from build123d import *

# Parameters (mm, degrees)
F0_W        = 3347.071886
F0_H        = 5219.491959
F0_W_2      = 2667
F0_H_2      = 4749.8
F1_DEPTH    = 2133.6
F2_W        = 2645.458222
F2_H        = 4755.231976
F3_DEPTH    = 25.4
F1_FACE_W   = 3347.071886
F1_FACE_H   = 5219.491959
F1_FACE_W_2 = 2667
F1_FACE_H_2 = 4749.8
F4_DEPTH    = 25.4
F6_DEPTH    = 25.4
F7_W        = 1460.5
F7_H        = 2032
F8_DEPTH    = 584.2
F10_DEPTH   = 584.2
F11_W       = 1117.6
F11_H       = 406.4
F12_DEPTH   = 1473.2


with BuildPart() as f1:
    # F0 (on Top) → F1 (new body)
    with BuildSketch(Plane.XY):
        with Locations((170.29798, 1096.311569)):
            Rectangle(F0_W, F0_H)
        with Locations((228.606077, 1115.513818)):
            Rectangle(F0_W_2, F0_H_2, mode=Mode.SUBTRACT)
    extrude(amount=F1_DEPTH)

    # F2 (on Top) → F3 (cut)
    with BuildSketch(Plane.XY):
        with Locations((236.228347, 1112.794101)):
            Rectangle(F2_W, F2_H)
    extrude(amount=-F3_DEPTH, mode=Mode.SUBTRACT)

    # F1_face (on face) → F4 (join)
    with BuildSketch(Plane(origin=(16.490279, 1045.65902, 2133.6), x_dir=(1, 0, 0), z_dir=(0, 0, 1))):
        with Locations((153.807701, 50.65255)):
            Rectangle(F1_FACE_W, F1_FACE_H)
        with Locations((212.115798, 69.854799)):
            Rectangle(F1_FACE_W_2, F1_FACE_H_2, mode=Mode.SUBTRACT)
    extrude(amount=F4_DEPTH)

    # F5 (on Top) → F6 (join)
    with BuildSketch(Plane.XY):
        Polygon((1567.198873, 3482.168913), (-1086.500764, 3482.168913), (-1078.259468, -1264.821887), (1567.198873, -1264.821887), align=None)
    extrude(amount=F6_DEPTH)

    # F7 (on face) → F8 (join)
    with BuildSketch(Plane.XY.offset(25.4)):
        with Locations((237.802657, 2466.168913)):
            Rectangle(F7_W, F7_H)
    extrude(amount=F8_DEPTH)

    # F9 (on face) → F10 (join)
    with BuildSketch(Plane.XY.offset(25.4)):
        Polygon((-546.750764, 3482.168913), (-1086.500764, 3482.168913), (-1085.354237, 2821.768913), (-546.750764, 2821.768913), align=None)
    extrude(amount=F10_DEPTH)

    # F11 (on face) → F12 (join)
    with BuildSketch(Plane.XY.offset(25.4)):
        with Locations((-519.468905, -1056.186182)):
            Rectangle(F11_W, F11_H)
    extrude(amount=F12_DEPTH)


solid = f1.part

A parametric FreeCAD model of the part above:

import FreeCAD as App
import Part
import Sketcher

V = App.Vector
Q = App.Units.Quantity

doc = App.newDocument("Part")
body = doc.addObject("PartDesign::Body", "Body")

# Sketch on XY plane
sketch1 = doc.addObject("Sketcher::SketchObject", "Sketch")
body.addObject(sketch1)
sketch1.AttachmentSupport = (doc.XY_Plane, [""])
sketch1.MapMode = "FlatFace"
sketch1.addGeometry(Part.LineSegment(V(-1503, 3706, 0), V(-1503, -1513, 0)), False)
sketch1.addGeometry(Part.LineSegment(V(-1503, -1513, 0), V(1844, -1513, 0)), False)
sketch1.addGeometry(Part.LineSegment(V(1844, -1513, 0), V(1844, 3706, 0)), False)
sketch1.addGeometry(Part.LineSegment(V(1844, 3706, 0), V(-1503, 3706, 0)), False)
sketch1.addGeometry(Part.LineSegment(V(1562, -1259, 0), V(-1105, -1259, 0)), False)
sketch1.addGeometry(Part.LineSegment(V(-1105, -1259, 0), V(-1105, 3490, 0)), False)
sketch1.addGeometry(Part.LineSegment(V(-1105, 3490, 0), V(1562, 3490, 0)), False)
sketch1.addGeometry(Part.LineSegment(V(1562, 3490, 0), V(1562, -1259, 0)), False)
sketch1.addConstraint(Sketcher.Constraint("Coincident", 0, 2, 1, 1))
sketch1.addConstraint(Sketcher.Constraint("Coincident", 1, 2, 2, 1))
sketch1.addConstraint(Sketcher.Constraint("Coincident", 2, 2, 3, 1))
sketch1.addConstraint(Sketcher.Constraint("Coincident", 3, 2, 0, 1))
sketch1.addConstraint(Sketcher.Constraint("Coincident", 4, 2, 5, 1))
sketch1.addConstraint(Sketcher.Constraint("Coincident", 5, 2, 6, 1))
sketch1.addConstraint(Sketcher.Constraint("Coincident", 6, 2, 7, 1))
sketch1.addConstraint(Sketcher.Constraint("Coincident", 7, 2, 4, 1))
sketch1.addConstraint(Sketcher.Constraint("Vertical", 0))
sketch1.addConstraint(Sketcher.Constraint("Horizontal", 1))
sketch1.addConstraint(Sketcher.Constraint("Vertical", 2))
sketch1.addConstraint(Sketcher.Constraint("Horizontal", 3))
sketch1.addConstraint(Sketcher.Constraint("Horizontal", 4))
sketch1.addConstraint(Sketcher.Constraint("Vertical", 5))
sketch1.addConstraint(Sketcher.Constraint("Horizontal", 6))
sketch1.addConstraint(Sketcher.Constraint("Vertical", 7))
sketch1.addConstraint(Sketcher.Constraint("DistanceX", 4, 2, 4, 1, Q("105 in")))
sketch1.addConstraint(Sketcher.Constraint("DistanceY", 5, 1, 5, 2, Q("187 in")))
sketch1.addConstraint(Sketcher.Constraint("DistanceY", 0, 2, 0, 1, Q("5219.491959 mm")))
sketch1.addConstraint(Sketcher.Constraint("DistanceX", 1, 1, 1, 2, Q("3347.071886 mm")))
sketch1.addConstraint(Sketcher.Constraint("DistanceY", 0, 2, -1, 1, Q("1513.434411 mm")))
sketch1.addConstraint(Sketcher.Constraint("DistanceY", 4, 2, -1, 1, Q("1259.386182 mm")))
sketch1.addConstraint(Sketcher.Constraint("DistanceX", 0, 2, 4, 2, Q("398.34404 mm")))
sketch1.addConstraint(Sketcher.Constraint("DistanceX", 0, 2, -1, 1, Q("1503.237963 mm")))
pad1 = doc.addObject("PartDesign::Pad", "Pad")
body.addObject(pad1)
pad1.Profile = sketch1
pad1.Length = Q("84 in")

# Sketch on XY plane
sketch2 = doc.addObject("Sketcher::SketchObject", "Sketch001")
body.addObject(sketch2)
sketch2.AttachmentSupport = (doc.XY_Plane, [""])
sketch2.MapMode = "FlatFace"
sketch2.addGeometry(Part.LineSegment(V(-1087, 3490, 0), V(-1087, -1265, 0)), False)
sketch2.addGeometry(Part.LineSegment(V(-1087, -1265, 0), V(1559, -1265, 0)), False)
sketch2.addGeometry(Part.LineSegment(V(1559, -1265, 0), V(1559, 3490, 0)), False)
sketch2.addGeometry(Part.LineSegment(V(1559, 3490, 0), V(-1087, 3490, 0)), False)
sketch2.addConstraint(Sketcher.Constraint("Coincident", 0, 2, 1, 1))
sketch2.addConstraint(Sketcher.Constraint("Coincident", 1, 2, 2, 1))
sketch2.addConstraint(Sketcher.Constraint("Coincident", 2, 2, 3, 1))
sketch2.addConstraint(Sketcher.Constraint("Coincident", 3, 2, 0, 1))
sketch2.addConstraint(Sketcher.Constraint("Vertical", 0))
sketch2.addConstraint(Sketcher.Constraint("Horizontal", 1))
sketch2.addConstraint(Sketcher.Constraint("Vertical", 2))
sketch2.addConstraint(Sketcher.Constraint("Horizontal", 3))
sketch2.addConstraint(Sketcher.Constraint("DistanceX", 1, 1, 1, 2, Q("2645.458222 mm")))
sketch2.addConstraint(Sketcher.Constraint("DistanceY", 0, 2, 0, 1, Q("4755.231976 mm")))
sketch2.addConstraint(Sketcher.Constraint("DistanceX", -1, 1, 1, 2, Q("1558.957458 mm")))
sketch2.addConstraint(Sketcher.Constraint("DistanceY", -1, 1, 2, 2, Q("3490.410089 mm")))
pocket1 = doc.addObject("PartDesign::Pocket", "Pocket")
body.addObject(pocket1)
pocket1.Profile = sketch2
pocket1.Length = Q("1 in")

# Sketch on XY plane
sketch3 = doc.addObject("Sketcher::SketchObject", "Sketch002")
body.addObject(sketch3)
sketch3.AttachmentSupport = (doc.XY_Plane, [""])
sketch3.MapMode = "FlatFace"
sketch3.AttachmentOffset = App.Placement(V(0, 0, 84 * 25.4), App.Rotation())
sketch3.addGeometry(Part.LineSegment(V(-1503, 3706, 0), V(-1503, -1513, 0)), False)
sketch3.addGeometry(Part.LineSegment(V(-1503, -1513, 0), V(1844, -1513, 0)), False)
sketch3.addGeometry(Part.LineSegment(V(1844, -1513, 0), V(1844, 3706, 0)), False)
sketch3.addGeometry(Part.LineSegment(V(1844, 3706, 0), V(-1503, 3706, 0)), False)
sketch3.addGeometry(Part.LineSegment(V(1562, -1259, 0), V(-1105, -1259, 0)), False)
sketch3.addGeometry(Part.LineSegment(V(-1105, -1259, 0), V(-1105, 3490, 0)), False)
sketch3.addGeometry(Part.LineSegment(V(-1105, 3490, 0), V(1562, 3490, 0)), False)
sketch3.addGeometry(Part.LineSegment(V(1562, 3490, 0), V(1562, -1259, 0)), False)
sketch3.addConstraint(Sketcher.Constraint("Coincident", 0, 2, 1, 1))
sketch3.addConstraint(Sketcher.Constraint("Coincident", 1, 2, 2, 1))
sketch3.addConstraint(Sketcher.Constraint("Coincident", 2, 2, 3, 1))
sketch3.addConstraint(Sketcher.Constraint("Coincident", 3, 2, 0, 1))
sketch3.addConstraint(Sketcher.Constraint("Coincident", 4, 2, 5, 1))
sketch3.addConstraint(Sketcher.Constraint("Coincident", 5, 2, 6, 1))
sketch3.addConstraint(Sketcher.Constraint("Coincident", 6, 2, 7, 1))
sketch3.addConstraint(Sketcher.Constraint("Coincident", 7, 2, 4, 1))
sketch3.addConstraint(Sketcher.Constraint("Vertical", 0))
sketch3.addConstraint(Sketcher.Constraint("Horizontal", 1))
sketch3.addConstraint(Sketcher.Constraint("Vertical", 2))
sketch3.addConstraint(Sketcher.Constraint("Horizontal", 3))
sketch3.addConstraint(Sketcher.Constraint("Horizontal", 4))
sketch3.addConstraint(Sketcher.Constraint("Vertical", 5))
sketch3.addConstraint(Sketcher.Constraint("Horizontal", 6))
sketch3.addConstraint(Sketcher.Constraint("Vertical", 7))
sketch3.addConstraint(Sketcher.Constraint("DistanceX", 4, 2, 4, 1, Q("105 in")))
sketch3.addConstraint(Sketcher.Constraint("DistanceY", 5, 1, 5, 2, Q("187 in")))
sketch3.addConstraint(Sketcher.Constraint("DistanceY", 0, 2, 0, 1, Q("5219.491959 mm")))
sketch3.addConstraint(Sketcher.Constraint("DistanceX", 1, 1, 1, 2, Q("3347.071886 mm")))
sketch3.addConstraint(Sketcher.Constraint("DistanceY", 0, 2, -1, 1, Q("1513.434409 mm")))
sketch3.addConstraint(Sketcher.Constraint("DistanceY", 4, 2, -1, 1, Q("1259.386181 mm")))
sketch3.addConstraint(Sketcher.Constraint("DistanceX", 0, 2, 4, 2, Q("398.34404 mm")))
sketch3.addConstraint(Sketcher.Constraint("DistanceX", 0, 2, -1, 1, Q("1503.237963 mm")))
pad2 = doc.addObject("PartDesign::Pad", "Pad001")
body.addObject(pad2)
pad2.Profile = sketch3
pad2.Length = Q("1 in")

# Sketch on XY plane
sketch4 = doc.addObject("Sketcher::SketchObject", "Sketch003")
body.addObject(sketch4)
sketch4.AttachmentSupport = (doc.XY_Plane, [""])
sketch4.MapMode = "FlatFace"
sketch4.addGeometry(Part.LineSegment(V(1567, 3482, 0), V(-1087, 3482, 0)), False)
sketch4.addGeometry(Part.LineSegment(V(-1087, 3482, 0), V(-1078, -1265, 0)), False)
sketch4.addGeometry(Part.LineSegment(V(-1078, -1265, 0), V(1567, -1265, 0)), False)
sketch4.addGeometry(Part.LineSegment(V(1567, -1265, 0), V(1567, 3482, 0)), False)
sketch4.addConstraint(Sketcher.Constraint("Coincident", 0, 2, 1, 1))
sketch4.addConstraint(Sketcher.Constraint("Coincident", 1, 2, 2, 1))
sketch4.addConstraint(Sketcher.Constraint("Coincident", 2, 2, 3, 1))
sketch4.addConstraint(Sketcher.Constraint("Coincident", 3, 2, 0, 1))
sketch4.addConstraint(Sketcher.Constraint("Horizontal", 0))
sketch4.addConstraint(Sketcher.Constraint("Horizontal", 2))
sketch4.addConstraint(Sketcher.Constraint("Vertical", 3))
sketch4.addConstraint(Sketcher.Constraint("DistanceY", 3, 1, 3, 2, Q("4746.9908 mm")))
sketch4.addConstraint(Sketcher.Constraint("DistanceX", 2, 1, 2, 2, Q("2645.458341 mm")))
sketch4.addConstraint(Sketcher.Constraint("DistanceX", 0, 2, 0, 1, Q("2653.699637 mm")))
sketch4.addConstraint(Sketcher.Constraint("DistanceX", 1, 2, -1, 1, Q("1078.259468 mm")))
sketch4.addConstraint(Sketcher.Constraint("DistanceY", -1, 1, 0, 2, Q("3482.168913 mm")))
pad3 = doc.addObject("PartDesign::Pad", "Pad002")
body.addObject(pad3)
pad3.Profile = sketch4
pad3.Length = Q("1 in")

# Sketch on XY plane
sketch5 = doc.addObject("Sketcher::SketchObject", "Sketch004")
body.addObject(sketch5)
sketch5.AttachmentSupport = (doc.XY_Plane, [""])
sketch5.MapMode = "FlatFace"
sketch5.AttachmentOffset = App.Placement(V(0, 0, 1 * 25.4), App.Rotation())
sketch5.addGeometry(Part.LineSegment(V(-492, 3482, 0), V(-492, 1450, 0)), False)
sketch5.addGeometry(Part.LineSegment(V(-492, 1450, 0), V(968, 1450, 0)), False)
sketch5.addGeometry(Part.LineSegment(V(968, 1450, 0), V(968, 3482, 0)), False)
sketch5.addGeometry(Part.LineSegment(V(968, 3482, 0), V(-492, 3482, 0)), False)
sketch5.addConstraint(Sketcher.Constraint("Coincident", 0, 2, 1, 1))
sketch5.addConstraint(Sketcher.Constraint("Coincident", 1, 2, 2, 1))
sketch5.addConstraint(Sketcher.Constraint("Coincident", 2, 2, 3, 1))
sketch5.addConstraint(Sketcher.Constraint("Coincident", 3, 2, 0, 1))
sketch5.addConstraint(Sketcher.Constraint("Vertical", 0))
sketch5.addConstraint(Sketcher.Constraint("Horizontal", 1))
sketch5.addConstraint(Sketcher.Constraint("Vertical", 2))
sketch5.addConstraint(Sketcher.Constraint("Horizontal", 3))
sketch5.addConstraint(Sketcher.Constraint("DistanceY", 0, 2, 0, 1, Q("80 in")))
sketch5.addConstraint(Sketcher.Constraint("DistanceX", 1, 1, 1, 2, Q("57.5 in")))
sketch5.addConstraint(Sketcher.Constraint("DistanceX", 0, 2, -1, 1, Q("492.447343 mm")))
sketch5.addConstraint(Sketcher.Constraint("DistanceY", -1, 1, 0, 2, Q("1450.168913 mm")))
pad4 = doc.addObject("PartDesign::Pad", "Pad003")
body.addObject(pad4)
pad4.Profile = sketch5
pad4.Length = Q("23 in")

# Sketch on XY plane
sketch6 = doc.addObject("Sketcher::SketchObject", "Sketch005")
body.addObject(sketch6)
sketch6.AttachmentSupport = (doc.XY_Plane, [""])
sketch6.MapMode = "FlatFace"
sketch6.AttachmentOffset = App.Placement(V(0, 0, 1 * 25.4), App.Rotation())
sketch6.addGeometry(Part.LineSegment(V(-547, 3482, 0), V(-1087, 3482, 0)), False)
sketch6.addGeometry(Part.LineSegment(V(-1087, 3482, 0), V(-1085, 2822, 0)), False)
sketch6.addGeometry(Part.LineSegment(V(-1085, 2822, 0), V(-547, 2822, 0)), False)
sketch6.addGeometry(Part.LineSegment(V(-547, 2822, 0), V(-547, 3482, 0)), False)
sketch6.addConstraint(Sketcher.Constraint("Coincident", 0, 2, 1, 1))
sketch6.addConstraint(Sketcher.Constraint("Coincident", 1, 2, 2, 1))
sketch6.addConstraint(Sketcher.Constraint("Coincident", 2, 2, 3, 1))
sketch6.addConstraint(Sketcher.Constraint("Coincident", 3, 2, 0, 1))
sketch6.addConstraint(Sketcher.Constraint("Horizontal", 0))
sketch6.addConstraint(Sketcher.Constraint("Horizontal", 2))
sketch6.addConstraint(Sketcher.Constraint("Vertical", 3))
sketch6.addConstraint(Sketcher.Constraint("DistanceY", 3, 1, 3, 2, Q("26 in")))
sketch6.addConstraint(Sketcher.Constraint("DistanceX", 0, 2, 0, 1, Q("21.25 in")))
sketch6.addConstraint(Sketcher.Constraint("DistanceX", 2, 1, 2, 2, Q("538.603473 mm")))
sketch6.addConstraint(Sketcher.Constraint("DistanceX", 0, 2, -1, 1, Q("1086.500764 mm")))
sketch6.addConstraint(Sketcher.Constraint("DistanceY", -1, 1, 0, 2, Q("3482.168913 mm")))
pad5 = doc.addObject("PartDesign::Pad", "Pad004")
body.addObject(pad5)
pad5.Profile = sketch6
pad5.Length = Q("23 in")

# Sketch on XY plane
sketch7 = doc.addObject("Sketcher::SketchObject", "Sketch006")
body.addObject(sketch7)
sketch7.AttachmentSupport = (doc.XY_Plane, [""])
sketch7.MapMode = "FlatFace"
sketch7.AttachmentOffset = App.Placement(V(0, 0, 1 * 25.4), App.Rotation())
sketch7.addGeometry(Part.LineSegment(V(-1078, -853, 0), V(-1078, -1259, 0)), False)
sketch7.addGeometry(Part.LineSegment(V(-1078, -1259, 0), V(39, -1259, 0)), False)
sketch7.addGeometry(Part.LineSegment(V(39, -1259, 0), V(39, -853, 0)), False)
sketch7.addGeometry(Part.LineSegment(V(39, -853, 0), V(-1078, -853, 0)), False)
sketch7.addConstraint(Sketcher.Constraint("Coincident", 0, 2, 1, 1))
sketch7.addConstraint(Sketcher.Constraint("Coincident", 1, 2, 2, 1))
sketch7.addConstraint(Sketcher.Constraint("Coincident", 2, 2, 3, 1))
sketch7.addConstraint(Sketcher.Constraint("Coincident", 3, 2, 0, 1))
sketch7.addConstraint(Sketcher.Constraint("Vertical", 0))
sketch7.addConstraint(Sketcher.Constraint("Horizontal", 1))
sketch7.addConstraint(Sketcher.Constraint("Vertical", 2))
sketch7.addConstraint(Sketcher.Constraint("Horizontal", 3))
sketch7.addConstraint(Sketcher.Constraint("DistanceX", 1, 1, 1, 2, Q("44 in")))
sketch7.addConstraint(Sketcher.Constraint("DistanceY", 0, 2, 0, 1, Q("16 in")))
sketch7.addConstraint(Sketcher.Constraint("DistanceY", 0, 2, -1, 1, Q("1259.386182 mm")))
sketch7.addConstraint(Sketcher.Constraint("DistanceX", 0, 2, -1, 1, Q("1078.268905 mm")))
pad6 = doc.addObject("PartDesign::Pad", "Pad005")
body.addObject(pad6)
pad6.Profile = sketch7
pad6.Length = Q("58 in")

doc.recompute()
